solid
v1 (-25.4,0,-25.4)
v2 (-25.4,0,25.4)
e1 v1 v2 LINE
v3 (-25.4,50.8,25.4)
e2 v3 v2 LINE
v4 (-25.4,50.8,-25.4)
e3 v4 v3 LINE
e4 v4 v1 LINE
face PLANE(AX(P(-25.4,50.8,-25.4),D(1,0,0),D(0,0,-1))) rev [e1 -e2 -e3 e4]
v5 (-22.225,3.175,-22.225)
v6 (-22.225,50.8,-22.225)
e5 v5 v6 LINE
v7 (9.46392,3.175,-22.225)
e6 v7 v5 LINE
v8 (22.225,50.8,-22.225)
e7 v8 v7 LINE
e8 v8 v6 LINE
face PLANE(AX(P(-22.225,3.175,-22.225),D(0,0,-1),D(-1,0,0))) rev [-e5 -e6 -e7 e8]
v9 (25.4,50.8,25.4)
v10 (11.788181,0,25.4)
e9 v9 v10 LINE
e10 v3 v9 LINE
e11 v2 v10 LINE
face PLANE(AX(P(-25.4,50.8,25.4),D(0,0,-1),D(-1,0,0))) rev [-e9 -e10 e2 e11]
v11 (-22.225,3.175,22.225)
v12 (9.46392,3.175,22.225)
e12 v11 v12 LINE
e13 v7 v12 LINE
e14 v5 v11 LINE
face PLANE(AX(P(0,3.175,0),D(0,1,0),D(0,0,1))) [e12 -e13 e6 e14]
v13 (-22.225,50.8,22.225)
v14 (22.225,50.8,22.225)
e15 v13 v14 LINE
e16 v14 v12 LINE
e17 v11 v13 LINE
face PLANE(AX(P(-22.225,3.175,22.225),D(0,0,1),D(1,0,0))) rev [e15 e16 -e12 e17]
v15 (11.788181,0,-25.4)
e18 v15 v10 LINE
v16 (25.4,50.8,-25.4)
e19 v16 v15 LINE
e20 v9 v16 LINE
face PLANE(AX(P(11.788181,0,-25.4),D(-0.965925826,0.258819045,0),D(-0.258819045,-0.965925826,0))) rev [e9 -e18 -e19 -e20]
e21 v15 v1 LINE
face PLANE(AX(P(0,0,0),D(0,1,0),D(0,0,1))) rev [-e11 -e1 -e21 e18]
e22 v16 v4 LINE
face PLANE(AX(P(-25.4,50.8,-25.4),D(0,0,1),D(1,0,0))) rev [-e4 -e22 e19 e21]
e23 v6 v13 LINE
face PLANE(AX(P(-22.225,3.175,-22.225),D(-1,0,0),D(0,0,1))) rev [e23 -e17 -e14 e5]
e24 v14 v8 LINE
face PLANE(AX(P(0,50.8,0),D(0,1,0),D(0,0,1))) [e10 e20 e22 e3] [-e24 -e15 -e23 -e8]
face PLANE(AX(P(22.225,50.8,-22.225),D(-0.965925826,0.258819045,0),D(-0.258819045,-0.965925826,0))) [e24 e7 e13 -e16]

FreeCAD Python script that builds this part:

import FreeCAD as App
import Part
import Sketcher

V = App.Vector
Q = App.Units.Quantity


def add_polygon(sketch, points):
    """Adds a closed chain of lines whose ends are joined by coincident constraints."""
    first, n = sketch.GeometryCount, len(points)
    for a, b in zip(points, points[1:] + points[:1]):
        sketch.addGeometry(Part.LineSegment(App.Vector(*a, 0), App.Vector(*b, 0)), False)
    for i in range(n):
        sketch.addConstraint(Sketcher.Constraint("Coincident", first + i, 2, first + (i + 1) % n, 1))

doc = App.newDocument("Part")
body = doc.addObject("PartDesign::Body", "Body")

# Sketch on XZ plane
sketch1 = body.newObject("Sketcher::SketchObject", "Sketch")
sketch1.AttachmentSupport = (doc.getObject("XZ_Plane"), [""])
sketch1.MapMode = "FlatFace"
add_polygon(sketch1, [(-25.4, -25.4), (-25.4, 25.4), (25.4, 25.4), (25.4, -25.4)])  # lines 0-3
sketch1.addConstraint([
    Sketcher.Constraint("Vertical", 0),
    Sketcher.Constraint("Horizontal", 1),
    Sketcher.Constraint("Vertical", 2),
    Sketcher.Constraint("Horizontal", 3),
    Sketcher.Constraint("Symmetric", 0, 2, 2, 2, -1, 1),
    Sketcher.Constraint("Equal", 3, 0),
    Sketcher.Constraint("DistanceX", 1, 1, 1, 2, Q("2 in")),
])
pad1 = body.newObject("PartDesign::Pad", "Pad")
pad1.Profile = sketch1
pad1.Length = Q("2 in")
pad1.Reversed = True

# Sketch on XY plane
sketch2 = body.newObject("Sketcher::SketchObject", "Sketch001")
sketch2.AttachmentSupport = (doc.getObject("XY_Plane"), [""])
sketch2.MapMode = "FlatFace"
sketch2.AttachmentOffset = App.Placement(V(0, 0, 1 * 25.4), App.Rotation())
add_polygon(sketch2, [(25.4, 0), (25.4, 50.8), (11.788181, 0)])  # lines 0-2
sketch2.addConstraint([
    Sketcher.Constraint("Vertical", 0),
    Sketcher.Constraint("Horizontal", 2),
    Sketcher.Constraint("PointOnObject", 1, 2, -1),
    Sketcher.Constraint("DistanceY", 0, 1, 0, 2, Q("2 in")),
    Sketcher.Constraint("DistanceX", -1, 1, 0, 2, Q("1 in")),
    Sketcher.Constraint("Angle", 1, Q("-105 deg")),
])
pocket1 = body.newObject("PartDesign::Pocket", "Pocket")
pocket1.Profile = sketch2
pocket1.Type = "ThroughAll"

# Sketch on XZ plane
sketch3 = body.newObject("Sketcher::SketchObject", "Sketch002")
sketch3.AttachmentSupport = (doc.getObject("XZ_Plane"), [""])
sketch3.MapMode = "FlatFace"
sketch3.AttachmentOffset = App.Placement(V(0, 0, -2 * 25.4), App.Rotation())
add_polygon(sketch3, [(-22.225, -22.225), (-22.225, 22.225), (22.225, 22.225), (22.225, -22.225)])  # lines 0-3
sketch3.addConstraint([
    Sketcher.Constraint("Vertical", 0),
    Sketcher.Constraint("Horizontal", 1),
    Sketcher.Constraint("Vertical", 2),
    Sketcher.Constraint("Horizontal", 3),
    Sketcher.Constraint("Symmetric", 0, 2, 2, 2, -1, 1),
    Sketcher.Constraint("Equal", 3, 0),
    Sketcher.Constraint("DistanceX", 1, 1, 1, 2, Q("1.75 in")),
])
pocket2 = body.newObject("PartDesign::Pocket", "Pocket001")
pocket2.Profile = sketch3
pocket2.Length = Q("1.875 in")
pocket2.Reversed = True

# Sketch on XY plane
sketch4 = body.newObject("Sketcher::SketchObject", "Sketch003")
sketch4.AttachmentSupport = (doc.getObject("XY_Plane"), [""])
sketch4.MapMode = "FlatFace"
sketch4.AttachmentOffset = App.Placement(V(0, 0, 1 * 25.4), App.Rotation())
add_polygon(sketch4, [(22.225, 50.8), (8.613181, 0), (11.788181, 0), (25.4, 50.8)])  # lines 0-3
sketch4.addConstraint([
    Sketcher.Constraint("Horizontal", 1),
    Sketcher.Constraint("Horizontal", 3),
    Sketcher.Constraint("PointOnObject", 0, 2, -1),
    Sketcher.Constraint("Parallel", 0, 2),
    Sketcher.Constraint("DistanceX", -1, 1, 2, 2, Q("1 in")),
    Sketcher.Constraint("DistanceY", -1, 1, 2, 2, Q("2 in")),
    Sketcher.Constraint("Angle", 0, Q("-105 deg")),
    Sketcher.Constraint("DistanceX", 1, 1, 1, 2, Q("0.125 in")),
])
pad2 = body.newObject("PartDesign::Pad", "Pad001")
pad2.Profile = sketch4
pad2.Length = Q("1.875 in")
pad2.Reversed = True

doc.recompute()
